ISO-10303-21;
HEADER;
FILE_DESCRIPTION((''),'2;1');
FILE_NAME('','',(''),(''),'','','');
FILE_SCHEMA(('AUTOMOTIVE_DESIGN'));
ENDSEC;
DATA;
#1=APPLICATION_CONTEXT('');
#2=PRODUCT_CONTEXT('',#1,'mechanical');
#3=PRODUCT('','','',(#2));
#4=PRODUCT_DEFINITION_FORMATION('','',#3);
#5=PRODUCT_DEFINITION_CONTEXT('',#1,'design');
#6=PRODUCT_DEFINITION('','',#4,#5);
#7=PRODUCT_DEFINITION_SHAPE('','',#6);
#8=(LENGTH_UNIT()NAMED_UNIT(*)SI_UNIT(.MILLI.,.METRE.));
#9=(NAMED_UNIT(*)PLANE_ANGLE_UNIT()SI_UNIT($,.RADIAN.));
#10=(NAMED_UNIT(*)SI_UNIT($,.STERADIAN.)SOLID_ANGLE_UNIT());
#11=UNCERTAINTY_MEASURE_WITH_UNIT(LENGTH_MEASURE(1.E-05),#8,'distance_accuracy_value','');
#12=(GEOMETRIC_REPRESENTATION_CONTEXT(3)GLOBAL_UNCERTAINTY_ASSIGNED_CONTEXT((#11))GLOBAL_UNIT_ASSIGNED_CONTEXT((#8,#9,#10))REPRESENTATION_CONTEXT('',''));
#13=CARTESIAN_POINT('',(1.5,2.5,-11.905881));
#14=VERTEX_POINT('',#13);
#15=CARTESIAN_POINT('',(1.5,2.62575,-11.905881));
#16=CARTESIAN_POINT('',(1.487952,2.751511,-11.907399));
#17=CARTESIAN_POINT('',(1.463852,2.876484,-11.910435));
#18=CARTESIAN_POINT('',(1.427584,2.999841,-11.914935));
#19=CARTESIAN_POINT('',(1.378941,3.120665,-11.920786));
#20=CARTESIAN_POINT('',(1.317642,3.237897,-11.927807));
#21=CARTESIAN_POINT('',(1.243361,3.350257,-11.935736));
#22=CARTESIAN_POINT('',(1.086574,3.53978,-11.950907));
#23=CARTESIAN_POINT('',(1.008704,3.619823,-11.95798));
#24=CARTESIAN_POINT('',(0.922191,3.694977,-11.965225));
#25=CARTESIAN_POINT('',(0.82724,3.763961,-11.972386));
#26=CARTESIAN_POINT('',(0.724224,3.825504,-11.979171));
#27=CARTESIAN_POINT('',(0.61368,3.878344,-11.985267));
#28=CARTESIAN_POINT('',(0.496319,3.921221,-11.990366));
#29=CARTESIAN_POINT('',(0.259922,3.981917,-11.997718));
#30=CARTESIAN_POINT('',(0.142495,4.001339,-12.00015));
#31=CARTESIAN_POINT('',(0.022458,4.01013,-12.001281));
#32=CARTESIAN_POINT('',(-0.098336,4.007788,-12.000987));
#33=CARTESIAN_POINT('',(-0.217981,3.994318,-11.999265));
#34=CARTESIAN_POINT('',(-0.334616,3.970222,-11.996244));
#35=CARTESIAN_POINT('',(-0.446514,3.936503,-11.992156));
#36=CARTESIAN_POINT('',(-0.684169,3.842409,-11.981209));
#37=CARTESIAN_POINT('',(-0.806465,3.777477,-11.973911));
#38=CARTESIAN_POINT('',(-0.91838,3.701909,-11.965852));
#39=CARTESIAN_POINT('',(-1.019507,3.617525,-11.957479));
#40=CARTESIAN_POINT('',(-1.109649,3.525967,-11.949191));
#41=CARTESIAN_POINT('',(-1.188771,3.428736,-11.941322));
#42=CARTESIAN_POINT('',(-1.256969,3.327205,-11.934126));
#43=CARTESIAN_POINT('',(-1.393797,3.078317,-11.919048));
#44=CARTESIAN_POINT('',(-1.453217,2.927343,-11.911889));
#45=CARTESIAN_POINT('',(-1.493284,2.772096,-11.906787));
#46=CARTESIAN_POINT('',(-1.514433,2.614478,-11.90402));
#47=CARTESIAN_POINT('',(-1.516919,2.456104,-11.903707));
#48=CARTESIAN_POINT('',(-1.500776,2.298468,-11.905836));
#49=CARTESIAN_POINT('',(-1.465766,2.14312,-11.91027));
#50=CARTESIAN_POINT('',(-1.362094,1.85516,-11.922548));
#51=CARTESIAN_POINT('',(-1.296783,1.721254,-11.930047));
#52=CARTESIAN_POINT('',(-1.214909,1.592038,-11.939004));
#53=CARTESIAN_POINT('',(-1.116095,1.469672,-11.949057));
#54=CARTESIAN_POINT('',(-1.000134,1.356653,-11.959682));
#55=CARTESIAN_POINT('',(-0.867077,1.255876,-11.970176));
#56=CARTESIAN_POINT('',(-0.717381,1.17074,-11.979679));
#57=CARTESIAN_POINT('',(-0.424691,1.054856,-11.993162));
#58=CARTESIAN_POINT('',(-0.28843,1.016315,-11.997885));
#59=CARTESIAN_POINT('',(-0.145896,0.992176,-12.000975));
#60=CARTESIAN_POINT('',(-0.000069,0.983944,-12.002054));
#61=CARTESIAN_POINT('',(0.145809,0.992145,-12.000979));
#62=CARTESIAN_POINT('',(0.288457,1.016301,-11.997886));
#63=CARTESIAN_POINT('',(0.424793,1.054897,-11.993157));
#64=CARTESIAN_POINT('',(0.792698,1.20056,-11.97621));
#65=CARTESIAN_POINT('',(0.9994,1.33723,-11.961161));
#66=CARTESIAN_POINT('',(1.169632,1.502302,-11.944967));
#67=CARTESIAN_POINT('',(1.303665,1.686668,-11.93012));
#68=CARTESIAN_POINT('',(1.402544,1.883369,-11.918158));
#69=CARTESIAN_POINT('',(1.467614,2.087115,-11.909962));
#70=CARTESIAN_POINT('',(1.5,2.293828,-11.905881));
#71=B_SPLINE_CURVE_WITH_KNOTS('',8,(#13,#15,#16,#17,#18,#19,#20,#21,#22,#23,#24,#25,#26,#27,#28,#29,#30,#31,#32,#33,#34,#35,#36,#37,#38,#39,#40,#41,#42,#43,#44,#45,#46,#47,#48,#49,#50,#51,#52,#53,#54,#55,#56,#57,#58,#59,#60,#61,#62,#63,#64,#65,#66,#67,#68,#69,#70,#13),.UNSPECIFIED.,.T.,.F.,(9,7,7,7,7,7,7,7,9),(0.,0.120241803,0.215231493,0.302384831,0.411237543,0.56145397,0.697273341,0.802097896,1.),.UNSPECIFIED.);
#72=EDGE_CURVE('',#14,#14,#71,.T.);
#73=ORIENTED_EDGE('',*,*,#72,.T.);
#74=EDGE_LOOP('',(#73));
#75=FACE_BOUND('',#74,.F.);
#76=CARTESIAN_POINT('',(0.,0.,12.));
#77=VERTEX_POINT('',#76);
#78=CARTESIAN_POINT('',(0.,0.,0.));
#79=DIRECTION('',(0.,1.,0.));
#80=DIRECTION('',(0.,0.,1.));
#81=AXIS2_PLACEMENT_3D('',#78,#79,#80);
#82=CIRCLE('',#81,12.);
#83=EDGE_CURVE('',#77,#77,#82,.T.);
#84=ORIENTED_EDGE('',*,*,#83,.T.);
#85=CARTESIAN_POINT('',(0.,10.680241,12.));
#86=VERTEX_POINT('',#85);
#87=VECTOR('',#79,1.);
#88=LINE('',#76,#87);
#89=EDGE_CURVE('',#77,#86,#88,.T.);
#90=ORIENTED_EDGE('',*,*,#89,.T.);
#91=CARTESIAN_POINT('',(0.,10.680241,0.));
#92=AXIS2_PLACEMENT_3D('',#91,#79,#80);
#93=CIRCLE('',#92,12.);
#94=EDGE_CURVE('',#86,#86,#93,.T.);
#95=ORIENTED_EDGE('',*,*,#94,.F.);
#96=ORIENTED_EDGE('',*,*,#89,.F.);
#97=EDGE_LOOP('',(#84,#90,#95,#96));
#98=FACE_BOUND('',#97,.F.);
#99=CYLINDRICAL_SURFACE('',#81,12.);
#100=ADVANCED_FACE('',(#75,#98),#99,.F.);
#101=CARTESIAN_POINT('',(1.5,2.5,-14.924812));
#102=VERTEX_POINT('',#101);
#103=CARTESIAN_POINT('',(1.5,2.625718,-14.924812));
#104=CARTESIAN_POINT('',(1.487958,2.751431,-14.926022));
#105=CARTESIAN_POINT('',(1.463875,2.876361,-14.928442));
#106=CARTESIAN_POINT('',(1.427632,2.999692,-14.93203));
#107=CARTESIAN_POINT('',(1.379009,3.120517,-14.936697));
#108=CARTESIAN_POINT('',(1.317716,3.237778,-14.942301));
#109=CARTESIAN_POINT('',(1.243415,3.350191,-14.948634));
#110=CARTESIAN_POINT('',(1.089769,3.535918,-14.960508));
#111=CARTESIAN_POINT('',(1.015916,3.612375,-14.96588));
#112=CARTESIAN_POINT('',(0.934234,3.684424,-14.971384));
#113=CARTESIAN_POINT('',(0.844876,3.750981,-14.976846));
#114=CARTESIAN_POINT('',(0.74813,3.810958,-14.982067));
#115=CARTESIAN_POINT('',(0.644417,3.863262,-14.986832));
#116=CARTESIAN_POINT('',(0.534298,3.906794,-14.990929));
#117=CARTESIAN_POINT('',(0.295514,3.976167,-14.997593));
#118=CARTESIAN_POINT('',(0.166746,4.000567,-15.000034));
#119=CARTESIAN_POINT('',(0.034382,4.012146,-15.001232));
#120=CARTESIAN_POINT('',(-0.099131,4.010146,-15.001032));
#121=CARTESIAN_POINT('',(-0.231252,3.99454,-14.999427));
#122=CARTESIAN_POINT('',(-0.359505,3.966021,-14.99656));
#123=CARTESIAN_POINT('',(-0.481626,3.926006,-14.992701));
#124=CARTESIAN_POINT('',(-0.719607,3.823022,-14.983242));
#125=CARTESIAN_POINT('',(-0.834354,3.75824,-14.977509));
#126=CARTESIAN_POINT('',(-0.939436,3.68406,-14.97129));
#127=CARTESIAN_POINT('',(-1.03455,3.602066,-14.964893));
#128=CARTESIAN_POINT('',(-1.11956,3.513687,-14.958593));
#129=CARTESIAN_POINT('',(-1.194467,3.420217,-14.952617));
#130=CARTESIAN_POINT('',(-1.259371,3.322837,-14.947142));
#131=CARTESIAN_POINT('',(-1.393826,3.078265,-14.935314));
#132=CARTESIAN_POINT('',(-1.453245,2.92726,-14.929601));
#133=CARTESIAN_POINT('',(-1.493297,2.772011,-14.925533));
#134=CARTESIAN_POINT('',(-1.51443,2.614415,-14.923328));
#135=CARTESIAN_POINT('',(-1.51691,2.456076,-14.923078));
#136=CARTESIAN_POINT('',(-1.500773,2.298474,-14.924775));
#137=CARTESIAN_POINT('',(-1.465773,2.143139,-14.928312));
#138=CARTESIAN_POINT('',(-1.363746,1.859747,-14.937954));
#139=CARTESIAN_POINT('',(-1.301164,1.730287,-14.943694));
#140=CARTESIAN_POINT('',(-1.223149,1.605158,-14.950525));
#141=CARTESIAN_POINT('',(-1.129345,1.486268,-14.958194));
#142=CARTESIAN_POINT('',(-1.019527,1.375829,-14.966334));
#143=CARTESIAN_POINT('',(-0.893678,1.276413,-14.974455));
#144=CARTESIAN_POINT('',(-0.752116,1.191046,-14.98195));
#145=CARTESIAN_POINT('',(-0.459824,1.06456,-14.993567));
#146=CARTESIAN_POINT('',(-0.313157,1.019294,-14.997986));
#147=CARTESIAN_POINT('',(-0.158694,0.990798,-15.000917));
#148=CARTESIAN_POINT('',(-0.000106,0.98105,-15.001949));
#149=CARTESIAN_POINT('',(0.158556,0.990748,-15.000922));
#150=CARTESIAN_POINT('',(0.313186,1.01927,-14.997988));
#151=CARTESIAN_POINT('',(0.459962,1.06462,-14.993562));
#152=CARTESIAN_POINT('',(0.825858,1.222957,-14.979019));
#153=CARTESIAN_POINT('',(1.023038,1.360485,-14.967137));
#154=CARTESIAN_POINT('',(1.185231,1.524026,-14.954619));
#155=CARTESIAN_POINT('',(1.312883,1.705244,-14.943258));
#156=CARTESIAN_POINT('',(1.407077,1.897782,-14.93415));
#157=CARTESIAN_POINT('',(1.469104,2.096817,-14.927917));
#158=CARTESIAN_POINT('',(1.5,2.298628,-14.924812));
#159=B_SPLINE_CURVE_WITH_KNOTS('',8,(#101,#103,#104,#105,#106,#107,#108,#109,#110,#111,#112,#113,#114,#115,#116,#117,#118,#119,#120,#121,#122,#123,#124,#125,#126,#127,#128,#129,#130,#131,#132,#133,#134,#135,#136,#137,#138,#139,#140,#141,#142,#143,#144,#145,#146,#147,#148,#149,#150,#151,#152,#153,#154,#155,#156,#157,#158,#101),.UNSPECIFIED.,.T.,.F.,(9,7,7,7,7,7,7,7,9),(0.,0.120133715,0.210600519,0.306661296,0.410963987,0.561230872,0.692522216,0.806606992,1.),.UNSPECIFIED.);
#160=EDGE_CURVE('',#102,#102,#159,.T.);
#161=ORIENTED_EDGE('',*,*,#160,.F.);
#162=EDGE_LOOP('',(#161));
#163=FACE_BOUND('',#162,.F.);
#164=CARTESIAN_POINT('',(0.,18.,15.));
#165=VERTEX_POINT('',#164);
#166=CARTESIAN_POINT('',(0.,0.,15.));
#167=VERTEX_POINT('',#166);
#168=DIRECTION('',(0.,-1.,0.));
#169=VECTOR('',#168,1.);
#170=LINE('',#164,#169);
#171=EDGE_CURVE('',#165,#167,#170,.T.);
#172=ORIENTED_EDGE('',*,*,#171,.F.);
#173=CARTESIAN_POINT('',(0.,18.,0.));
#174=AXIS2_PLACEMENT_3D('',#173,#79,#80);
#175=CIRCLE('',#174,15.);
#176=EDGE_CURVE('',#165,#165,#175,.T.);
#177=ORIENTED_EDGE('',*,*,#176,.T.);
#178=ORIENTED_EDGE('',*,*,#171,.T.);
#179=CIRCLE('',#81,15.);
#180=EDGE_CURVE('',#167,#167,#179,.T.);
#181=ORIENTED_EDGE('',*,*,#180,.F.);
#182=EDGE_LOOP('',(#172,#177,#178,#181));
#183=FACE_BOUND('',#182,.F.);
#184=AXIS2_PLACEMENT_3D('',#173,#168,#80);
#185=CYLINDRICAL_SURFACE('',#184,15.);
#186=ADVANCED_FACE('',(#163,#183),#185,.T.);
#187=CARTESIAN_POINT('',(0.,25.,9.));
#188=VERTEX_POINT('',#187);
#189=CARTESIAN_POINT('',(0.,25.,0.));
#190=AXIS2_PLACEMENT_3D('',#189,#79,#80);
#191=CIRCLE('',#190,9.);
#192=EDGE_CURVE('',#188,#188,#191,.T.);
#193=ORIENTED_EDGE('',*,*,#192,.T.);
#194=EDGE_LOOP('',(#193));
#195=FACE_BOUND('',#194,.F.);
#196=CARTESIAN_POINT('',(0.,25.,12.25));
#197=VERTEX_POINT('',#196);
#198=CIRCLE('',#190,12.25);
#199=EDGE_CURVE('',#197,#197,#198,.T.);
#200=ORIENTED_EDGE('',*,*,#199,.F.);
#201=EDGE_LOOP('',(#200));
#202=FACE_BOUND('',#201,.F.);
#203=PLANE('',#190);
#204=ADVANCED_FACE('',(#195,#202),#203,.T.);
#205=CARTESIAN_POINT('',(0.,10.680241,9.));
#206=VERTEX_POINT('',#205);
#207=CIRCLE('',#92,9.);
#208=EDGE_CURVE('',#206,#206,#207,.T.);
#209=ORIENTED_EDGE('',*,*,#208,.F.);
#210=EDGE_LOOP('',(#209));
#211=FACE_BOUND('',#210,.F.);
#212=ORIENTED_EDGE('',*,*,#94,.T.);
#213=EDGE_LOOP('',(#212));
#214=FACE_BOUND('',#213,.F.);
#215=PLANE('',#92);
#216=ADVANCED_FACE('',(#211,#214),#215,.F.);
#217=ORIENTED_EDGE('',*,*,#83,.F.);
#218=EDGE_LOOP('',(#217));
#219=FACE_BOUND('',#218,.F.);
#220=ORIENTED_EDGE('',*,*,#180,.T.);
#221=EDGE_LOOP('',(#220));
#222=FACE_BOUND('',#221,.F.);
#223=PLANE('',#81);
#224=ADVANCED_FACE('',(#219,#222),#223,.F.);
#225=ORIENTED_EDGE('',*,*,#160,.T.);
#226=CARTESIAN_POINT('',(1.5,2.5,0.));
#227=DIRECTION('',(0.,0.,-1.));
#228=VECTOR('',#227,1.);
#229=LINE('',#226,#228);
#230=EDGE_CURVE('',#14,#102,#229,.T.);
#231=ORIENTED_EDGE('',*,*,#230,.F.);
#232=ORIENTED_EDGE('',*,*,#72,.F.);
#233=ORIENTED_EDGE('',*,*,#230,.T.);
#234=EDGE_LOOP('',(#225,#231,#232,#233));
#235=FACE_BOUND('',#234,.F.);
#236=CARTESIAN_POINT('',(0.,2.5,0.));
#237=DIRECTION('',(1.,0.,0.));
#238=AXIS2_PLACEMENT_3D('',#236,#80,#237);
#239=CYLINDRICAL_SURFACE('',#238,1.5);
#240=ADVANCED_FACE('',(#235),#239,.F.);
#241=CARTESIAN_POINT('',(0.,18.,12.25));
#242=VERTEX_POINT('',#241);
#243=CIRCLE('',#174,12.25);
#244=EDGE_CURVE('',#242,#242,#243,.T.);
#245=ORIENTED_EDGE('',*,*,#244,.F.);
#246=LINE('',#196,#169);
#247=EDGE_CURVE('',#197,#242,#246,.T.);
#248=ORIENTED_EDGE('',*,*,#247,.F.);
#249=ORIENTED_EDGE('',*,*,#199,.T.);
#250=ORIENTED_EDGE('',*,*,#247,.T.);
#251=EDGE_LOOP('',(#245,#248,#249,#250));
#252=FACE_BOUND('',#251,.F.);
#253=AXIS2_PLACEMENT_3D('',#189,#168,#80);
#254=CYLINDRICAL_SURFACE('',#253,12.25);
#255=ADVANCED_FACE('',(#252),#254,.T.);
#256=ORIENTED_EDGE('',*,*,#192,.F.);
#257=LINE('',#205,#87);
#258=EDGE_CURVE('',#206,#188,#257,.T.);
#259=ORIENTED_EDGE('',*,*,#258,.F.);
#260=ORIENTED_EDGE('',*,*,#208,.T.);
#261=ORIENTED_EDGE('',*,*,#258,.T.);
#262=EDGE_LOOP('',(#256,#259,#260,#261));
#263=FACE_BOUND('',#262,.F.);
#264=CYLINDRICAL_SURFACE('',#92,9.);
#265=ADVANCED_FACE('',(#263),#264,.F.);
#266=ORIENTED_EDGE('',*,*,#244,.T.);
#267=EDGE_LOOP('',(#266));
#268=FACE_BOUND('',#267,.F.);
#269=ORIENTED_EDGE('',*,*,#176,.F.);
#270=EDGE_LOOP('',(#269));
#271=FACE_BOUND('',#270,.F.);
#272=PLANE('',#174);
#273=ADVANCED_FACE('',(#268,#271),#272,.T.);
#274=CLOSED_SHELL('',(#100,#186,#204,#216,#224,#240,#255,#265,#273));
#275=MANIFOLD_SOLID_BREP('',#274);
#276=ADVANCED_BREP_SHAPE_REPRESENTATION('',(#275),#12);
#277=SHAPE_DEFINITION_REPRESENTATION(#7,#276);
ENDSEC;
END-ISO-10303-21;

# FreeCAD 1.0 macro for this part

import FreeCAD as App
import Part
import Sketcher

doc = App.newDocument("Part")
body = doc.addObject("PartDesign::Body", "Body")

# Sketch on YZ plane
sketch1 = doc.addObject("Sketcher::SketchObject", "Sketch")
body.addObject(sketch1)
sketch1.AttachmentSupport = (doc.YZ_Plane, [""])
sketch1.MapMode = "FlatFace"
sketch1.addGeometry([
    Part.LineSegment(App.Vector(18, 15, 0), App.Vector(0, 15, 0)),  # 0
    Part.LineSegment(App.Vector(0, 15, 0), App.Vector(0, 12, 0)),  # 1
    Part.LineSegment(App.Vector(0, 12, 0), App.Vector(10.7, 12, 0)),  # 2
    Part.LineSegment(App.Vector(10.7, 12, 0), App.Vector(10.7, 9, 0)),  # 3
    Part.LineSegment(App.Vector(10.7, 9, 0), App.Vector(25, 9, 0)),  # 4
    Part.LineSegment(App.Vector(25, 9, 0), App.Vector(25, 12.2, 0)),  # 5
    Part.LineSegment(App.Vector(25, 12.2, 0), App.Vector(18, 12.2, 0)),  # 6
    Part.LineSegment(App.Vector(18, 12.2, 0), App.Vector(18, 15, 0)),  # 7
], False)
sketch1.addConstraint([
    Sketcher.Constraint("Coincident", 0, 2, 1, 1),
    Sketcher.Constraint("Coincident", 1, 2, 2, 1),
    Sketcher.Constraint("Coincident", 2, 2, 3, 1),
    Sketcher.Constraint("Coincident", 3, 2, 4, 1),
    Sketcher.Constraint("Coincident", 4, 2, 5, 1),
    Sketcher.Constraint("Coincident", 5, 2, 6, 1),
    Sketcher.Constraint("Coincident", 6, 2, 7, 1),
    Sketcher.Constraint("Coincident", 7, 2, 0, 1),
    Sketcher.Constraint("Horizontal", 0),
    Sketcher.Constraint("Vertical", 1),
    Sketcher.Constraint("Horizontal", 2),
    Sketcher.Constraint("Vertical", 3),
    Sketcher.Constraint("Horizontal", 4),
    Sketcher.Constraint("Vertical", 5),
    Sketcher.Constraint("Horizontal", 6),
    Sketcher.Constraint("Vertical", 7),
    Sketcher.Constraint("PointOnObject", 0, 2, -2),
    Sketcher.Constraint("Equal", 1, 3),
    Sketcher.Constraint("DistanceX", 0, 2, 0, 1, 18.0),
    Sketcher.Constraint("DistanceX", 6, 2, 6, 1, 7.0),
    Sketcher.Constraint("DistanceY", 1, 2, 1, 1, 3.0),
    Sketcher.Constraint("DistanceY", -1, 1, 0, 2, 15.0),
    Sketcher.Constraint("DistanceY", 5, 1, 5, 2, 3.25),
    Sketcher.Constraint("DistanceX", 2, 1, 2, 2, 10.680241),
])
revolution = doc.addObject("PartDesign::Revolution", "Revolution")
body.addObject(revolution)
revolution.Profile = sketch1
revolution.ReferenceAxis = (sketch1, ["H_Axis"])
revolution.Angle = 360

# Sketch on XY plane
sketch2 = doc.addObject("Sketcher::SketchObject", "Sketch001")
body.addObject(sketch2)
sketch2.AttachmentSupport = (doc.XY_Plane, [""])
sketch2.MapMode = "FlatFace"
sketch2.addGeometry(Part.Circle(App.Vector(0, 2.5, 0), App.Vector(0, 0, 1), 1.5), False)
sketch2.addConstraint([
    Sketcher.Constraint("PointOnObject", 0, 3, -2),
    Sketcher.Constraint("Diameter", 0, 3.0),
    Sketcher.Constraint("DistanceY", -1, 1, 0, 3, 2.5),
])
pocket1 = doc.addObject("PartDesign::Pocket", "Pocket")
body.addObject(pocket1)
pocket1.Profile = sketch2
pocket1.Type = "ThroughAll"

doc.recompute()
